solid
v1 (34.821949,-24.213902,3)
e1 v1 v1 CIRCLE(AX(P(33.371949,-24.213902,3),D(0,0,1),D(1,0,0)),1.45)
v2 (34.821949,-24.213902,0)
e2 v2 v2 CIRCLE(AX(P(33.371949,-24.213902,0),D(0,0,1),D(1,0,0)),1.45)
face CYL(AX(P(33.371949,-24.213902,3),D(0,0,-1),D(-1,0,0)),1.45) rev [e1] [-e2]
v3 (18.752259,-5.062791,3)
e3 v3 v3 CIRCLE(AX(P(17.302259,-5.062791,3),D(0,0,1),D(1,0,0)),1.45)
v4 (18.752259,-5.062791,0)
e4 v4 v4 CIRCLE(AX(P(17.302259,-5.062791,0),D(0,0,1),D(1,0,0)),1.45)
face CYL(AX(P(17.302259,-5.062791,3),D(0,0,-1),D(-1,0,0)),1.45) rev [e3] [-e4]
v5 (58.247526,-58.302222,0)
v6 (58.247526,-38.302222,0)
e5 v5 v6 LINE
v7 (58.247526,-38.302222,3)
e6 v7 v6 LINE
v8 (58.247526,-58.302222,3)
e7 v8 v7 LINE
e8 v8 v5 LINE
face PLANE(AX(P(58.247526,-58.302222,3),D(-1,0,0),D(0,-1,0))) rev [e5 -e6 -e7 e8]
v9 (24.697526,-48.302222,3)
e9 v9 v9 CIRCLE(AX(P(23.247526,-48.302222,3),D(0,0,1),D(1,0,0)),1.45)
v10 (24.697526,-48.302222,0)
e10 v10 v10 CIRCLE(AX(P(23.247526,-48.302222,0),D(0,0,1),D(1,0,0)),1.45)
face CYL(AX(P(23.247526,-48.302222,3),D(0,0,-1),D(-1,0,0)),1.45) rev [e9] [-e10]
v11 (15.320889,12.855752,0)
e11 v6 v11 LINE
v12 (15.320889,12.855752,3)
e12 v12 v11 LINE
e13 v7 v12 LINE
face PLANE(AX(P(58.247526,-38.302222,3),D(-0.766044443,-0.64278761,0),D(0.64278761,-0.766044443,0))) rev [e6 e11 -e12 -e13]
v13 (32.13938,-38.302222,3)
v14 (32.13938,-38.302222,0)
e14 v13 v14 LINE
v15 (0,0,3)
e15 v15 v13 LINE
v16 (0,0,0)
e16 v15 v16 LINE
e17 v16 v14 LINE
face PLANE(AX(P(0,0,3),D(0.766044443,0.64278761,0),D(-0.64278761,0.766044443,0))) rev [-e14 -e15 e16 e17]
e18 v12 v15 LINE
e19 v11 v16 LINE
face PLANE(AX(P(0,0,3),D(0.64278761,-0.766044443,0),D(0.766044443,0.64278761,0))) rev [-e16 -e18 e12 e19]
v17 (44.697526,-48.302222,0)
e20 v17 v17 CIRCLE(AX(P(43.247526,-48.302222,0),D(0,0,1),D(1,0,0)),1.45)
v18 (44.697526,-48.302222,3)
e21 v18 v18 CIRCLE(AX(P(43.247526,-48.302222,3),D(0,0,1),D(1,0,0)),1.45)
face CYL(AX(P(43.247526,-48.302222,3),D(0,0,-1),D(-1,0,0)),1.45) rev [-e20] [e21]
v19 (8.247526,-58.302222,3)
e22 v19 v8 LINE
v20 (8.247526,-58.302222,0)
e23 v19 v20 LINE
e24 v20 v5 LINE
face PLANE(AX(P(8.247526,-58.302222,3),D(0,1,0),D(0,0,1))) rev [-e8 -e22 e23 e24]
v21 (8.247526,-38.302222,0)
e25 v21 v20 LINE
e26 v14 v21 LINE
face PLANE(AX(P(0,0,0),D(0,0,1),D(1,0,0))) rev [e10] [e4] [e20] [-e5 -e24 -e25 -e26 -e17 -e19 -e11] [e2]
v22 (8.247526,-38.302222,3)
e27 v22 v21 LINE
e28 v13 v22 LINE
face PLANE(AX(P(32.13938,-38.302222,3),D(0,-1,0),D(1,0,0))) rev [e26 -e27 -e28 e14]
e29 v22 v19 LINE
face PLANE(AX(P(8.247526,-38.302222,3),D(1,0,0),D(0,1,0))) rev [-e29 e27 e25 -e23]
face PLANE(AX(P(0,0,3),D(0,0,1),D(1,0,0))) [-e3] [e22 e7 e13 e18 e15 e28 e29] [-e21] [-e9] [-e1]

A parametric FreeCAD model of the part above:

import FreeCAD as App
import Part
import Sketcher
from FreeCAD import Vector
Q = App.Units.Quantity


def add_polygon(sketch, points):
    """Adds a closed chain of lines whose ends are joined by coincident constraints."""
    first, n = sketch.GeometryCount, len(points)
    for a, b in zip(points, points[1:] + points[:1]):
        sketch.addGeometry(Part.LineSegment(App.Vector(*a, 0), App.Vector(*b, 0)), False)
    for i in range(n):
        sketch.addConstraint(Sketcher.Constraint("Coincident", first + i, 2, first + (i + 1) % n, 1))

doc = App.newDocument("Part")
body = doc.addObject("PartDesign::Body", "Body")

# Sketch on XY plane
sketch1 = body.newObject("Sketcher::SketchObject", "Sketch")
sketch1.AttachmentSupport = (doc.getObject("XY_Plane"), [""])
sketch1.MapMode = "FlatFace"
add_polygon(sketch1, [(0, 0), (32.1, -38.3), (8.2, -38.3), (8.2, -58.3), (58.2, -58.3), (58.2, -38.3), (15.3, 12.9)])  # lines 0-6
sketch1.addGeometry(Part.Circle(Vector(23.2, -48.3, 0), Vector(0, 0, 1), 1.4), False)  # 7
sketch1.addGeometry(Part.Circle(Vector(43.2, -48.3, 0), Vector(0, 0, 1), 1.4), False)  # 8
sketch1.addGeometry(Part.Circle(Vector(17.3, -5.1, 0), Vector(0, 0, 1), 1.4), False)  # 9
sketch1.addGeometry(Part.Circle(Vector(33.4, -24.2, 0), Vector(0, 0, 1), 1.4), False)  # 10
sketch1.addConstraint([
    Sketcher.Constraint("Horizontal", 1),
    Sketcher.Constraint("Vertical", 2),
    Sketcher.Constraint("Horizontal", 3),
    Sketcher.Constraint("Vertical", 4),
    Sketcher.Constraint("Coincident", 6, 2, -1, 1),
    Sketcher.Constraint("Equal", 7, 8),
    Sketcher.Constraint("Equal", 8, 9),
    Sketcher.Constraint("Equal", 9, 10),
    Sketcher.Constraint("Parallel", 0, 5),
    Sketcher.Constraint("Perpendicular", 5, 6),
    Sketcher.Constraint("Horizontal", 7, 3, 8, 3),
    Sketcher.Constraint("Horizontal", 1, 2, 4, 2),
    Sketcher.Constraint("Diameter", 7, Q("2.9 mm")),
    Sketcher.Constraint("DistanceX", 3, 1, 3, 2, Q("50 mm")),
    Sketcher.Constraint("DistanceY", 2, 2, 2, 1, Q("20 mm")),
    Sketcher.Constraint("Angle", 0, Q("-50 deg")),
    Sketcher.Constraint("Distance", 0, Q("50 mm")),
    Sketcher.Constraint("Distance", 6, Q("20 mm")),
    Sketcher.Constraint("DistanceX", 7, 3, 8, 3, Q("20 mm")),
    Sketcher.Constraint("DistanceY", 7, 3, 0, 2, Q("10 mm")),
    Sketcher.Constraint("DistanceX", 1, 2, 7, 3, Q("15 mm")),
    Sketcher.Constraint("DistanceY", 10, 3, -1, 1, Q("24.213902 mm")),
    Sketcher.Constraint("DistanceX", -1, 1, 9, 3, Q("17.302259 mm")),
    Sketcher.Constraint("DistanceY", 9, 3, -1, 1, Q("5.062791 mm")),
    Sketcher.Constraint("DistanceX", -1, 1, 10, 3, Q("33.371949 mm")),
])
pad1 = body.newObject("PartDesign::Pad", "Pad")
pad1.Profile = sketch1
pad1.Length = 3

doc.recompute()
